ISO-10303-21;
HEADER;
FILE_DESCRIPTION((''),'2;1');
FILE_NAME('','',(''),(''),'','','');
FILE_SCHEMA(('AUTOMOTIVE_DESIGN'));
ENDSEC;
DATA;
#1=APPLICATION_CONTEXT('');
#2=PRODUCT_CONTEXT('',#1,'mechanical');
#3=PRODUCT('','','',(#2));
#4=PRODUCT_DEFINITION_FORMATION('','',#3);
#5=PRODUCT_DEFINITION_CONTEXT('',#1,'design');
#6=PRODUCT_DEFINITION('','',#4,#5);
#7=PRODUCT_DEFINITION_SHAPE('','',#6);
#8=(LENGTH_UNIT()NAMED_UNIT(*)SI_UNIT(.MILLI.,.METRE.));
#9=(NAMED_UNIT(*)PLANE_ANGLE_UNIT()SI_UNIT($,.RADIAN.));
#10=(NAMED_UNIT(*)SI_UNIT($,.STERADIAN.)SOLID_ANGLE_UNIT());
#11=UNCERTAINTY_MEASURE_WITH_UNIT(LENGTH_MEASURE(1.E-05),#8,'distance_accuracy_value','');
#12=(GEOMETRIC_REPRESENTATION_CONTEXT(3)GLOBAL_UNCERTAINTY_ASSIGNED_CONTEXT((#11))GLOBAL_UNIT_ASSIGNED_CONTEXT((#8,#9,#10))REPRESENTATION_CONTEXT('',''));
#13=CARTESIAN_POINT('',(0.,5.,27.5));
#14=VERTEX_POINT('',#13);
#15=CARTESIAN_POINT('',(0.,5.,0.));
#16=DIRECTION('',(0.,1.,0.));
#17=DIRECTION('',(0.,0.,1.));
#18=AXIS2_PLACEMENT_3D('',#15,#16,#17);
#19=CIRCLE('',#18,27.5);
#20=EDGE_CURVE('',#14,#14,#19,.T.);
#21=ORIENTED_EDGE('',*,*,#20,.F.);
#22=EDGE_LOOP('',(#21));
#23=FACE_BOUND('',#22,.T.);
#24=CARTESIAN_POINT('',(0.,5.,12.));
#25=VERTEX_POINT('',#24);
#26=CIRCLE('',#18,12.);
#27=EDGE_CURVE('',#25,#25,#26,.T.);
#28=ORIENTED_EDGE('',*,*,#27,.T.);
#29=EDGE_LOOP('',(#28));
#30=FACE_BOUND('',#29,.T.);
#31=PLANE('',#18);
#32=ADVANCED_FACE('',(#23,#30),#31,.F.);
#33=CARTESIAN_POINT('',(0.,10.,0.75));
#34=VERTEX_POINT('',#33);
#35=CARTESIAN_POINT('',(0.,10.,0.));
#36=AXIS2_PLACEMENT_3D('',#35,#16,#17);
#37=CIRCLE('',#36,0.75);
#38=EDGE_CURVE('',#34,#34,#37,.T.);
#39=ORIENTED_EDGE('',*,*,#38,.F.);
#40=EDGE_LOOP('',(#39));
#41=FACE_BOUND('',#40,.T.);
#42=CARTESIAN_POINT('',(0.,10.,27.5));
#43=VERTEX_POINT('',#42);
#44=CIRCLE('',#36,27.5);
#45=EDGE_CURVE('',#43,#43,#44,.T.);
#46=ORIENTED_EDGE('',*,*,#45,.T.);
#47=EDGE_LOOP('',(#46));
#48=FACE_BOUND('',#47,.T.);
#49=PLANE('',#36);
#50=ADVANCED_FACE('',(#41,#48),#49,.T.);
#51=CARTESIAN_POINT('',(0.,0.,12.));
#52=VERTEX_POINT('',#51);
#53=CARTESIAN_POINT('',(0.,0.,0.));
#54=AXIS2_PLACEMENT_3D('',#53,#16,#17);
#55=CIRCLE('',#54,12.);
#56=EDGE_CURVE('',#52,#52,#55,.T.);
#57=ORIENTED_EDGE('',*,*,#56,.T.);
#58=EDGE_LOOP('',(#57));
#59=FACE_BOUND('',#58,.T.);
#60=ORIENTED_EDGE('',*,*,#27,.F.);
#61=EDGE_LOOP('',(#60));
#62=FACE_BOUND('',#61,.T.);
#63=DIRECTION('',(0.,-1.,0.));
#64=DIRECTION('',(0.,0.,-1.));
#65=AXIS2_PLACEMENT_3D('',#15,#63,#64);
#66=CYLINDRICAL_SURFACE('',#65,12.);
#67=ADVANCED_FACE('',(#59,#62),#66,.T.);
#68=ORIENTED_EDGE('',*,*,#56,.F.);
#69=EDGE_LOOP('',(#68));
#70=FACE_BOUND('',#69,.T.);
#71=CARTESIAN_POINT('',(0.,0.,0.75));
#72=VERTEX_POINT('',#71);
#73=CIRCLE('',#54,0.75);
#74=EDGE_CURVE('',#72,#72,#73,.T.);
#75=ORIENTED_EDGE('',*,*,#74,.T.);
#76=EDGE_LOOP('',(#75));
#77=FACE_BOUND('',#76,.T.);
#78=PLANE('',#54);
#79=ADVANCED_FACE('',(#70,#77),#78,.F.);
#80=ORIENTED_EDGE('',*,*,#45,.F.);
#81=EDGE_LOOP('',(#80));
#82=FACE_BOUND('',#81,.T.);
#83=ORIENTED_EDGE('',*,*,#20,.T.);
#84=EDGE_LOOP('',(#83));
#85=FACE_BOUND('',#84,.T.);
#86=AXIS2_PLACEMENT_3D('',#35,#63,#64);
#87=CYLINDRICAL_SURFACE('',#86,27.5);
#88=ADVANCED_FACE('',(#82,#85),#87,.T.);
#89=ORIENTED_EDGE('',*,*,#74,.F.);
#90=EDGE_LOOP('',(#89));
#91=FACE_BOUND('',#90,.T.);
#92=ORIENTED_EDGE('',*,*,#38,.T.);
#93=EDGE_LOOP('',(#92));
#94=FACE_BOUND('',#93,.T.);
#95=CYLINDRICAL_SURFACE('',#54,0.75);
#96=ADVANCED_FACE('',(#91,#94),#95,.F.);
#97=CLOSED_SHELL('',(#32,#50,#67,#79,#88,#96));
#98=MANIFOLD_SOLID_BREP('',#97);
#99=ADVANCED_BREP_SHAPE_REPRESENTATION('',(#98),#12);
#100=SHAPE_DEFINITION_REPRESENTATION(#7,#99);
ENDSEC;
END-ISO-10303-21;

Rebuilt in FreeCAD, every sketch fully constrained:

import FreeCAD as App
import Part
import Sketcher
from FreeCAD import Vector
Q = App.Units.Quantity

doc = App.newDocument("Part")
body = doc.addObject("PartDesign::Body", "Body")

# Sketch on XZ plane
sketch1 = body.newObject("Sketcher::SketchObject", "Sketch")
sketch1.AttachmentSupport = (doc.getObject("XZ_Plane"), [""])
sketch1.MapMode = "FlatFace"
sketch1.addGeometry(Part.Circle(Vector(0, 0, 0), Vector(0, 0, 1), 12), False)
sketch1.addConstraint(Sketcher.Constraint("Coincident", 0, 3, -1, 1))
sketch1.addConstraint(Sketcher.Constraint("Diameter", 0, Q("24 mm")))
pad1 = body.newObject("PartDesign::Pad", "Pad")
pad1.Profile = sketch1
pad1.Length = 5
pad1.Reversed = True

# Sketch on XZ plane
sketch2 = body.newObject("Sketcher::SketchObject", "Sketch001")
sketch2.AttachmentSupport = (doc.getObject("XZ_Plane"), [""])
sketch2.MapMode = "FlatFace"
sketch2.AttachmentOffset = App.Placement(Vector(0, 0, -5), App.Rotation())
sketch2.addGeometry(Part.Circle(Vector(0, 0, 0), Vector(0, 0, 1), 0.8), False)
sketch2.addConstraint(Sketcher.Constraint("Coincident", 0, 3, -1, 1))
sketch2.addConstraint(Sketcher.Constraint("Diameter", 0, Q("1.5 mm")))
pocket1 = body.newObject("PartDesign::Pocket", "Pocket")
pocket1.Profile = sketch2
pocket1.Length = 5
pocket1.Reversed = True

# Sketch on XZ plane
sketch3 = body.newObject("Sketcher::SketchObject", "Sketch002")
sketch3.AttachmentSupport = (doc.getObject("XZ_Plane"), [""])
sketch3.MapMode = "FlatFace"
sketch3.AttachmentOffset = App.Placement(Vector(0, 0, -5), App.Rotation())
sketch3.addGeometry(Part.Circle(Vector(0, 0, 0), Vector(0, 0, 1), 28), False)
sketch3.addConstraint(Sketcher.Constraint("Coincident", 0, 3, -1, 1))
sketch3.addConstraint(Sketcher.Constraint("Diameter", 0, Q("55 mm")))
pad2 = body.newObject("PartDesign::Pad", "Pad001")
pad2.Profile = sketch3
pad2.Length = 5
pad2.Reversed = True

# Sketch on XZ plane
sketch4 = body.newObject("Sketcher::SketchObject", "Sketch003")
sketch4.AttachmentSupport = (doc.getObject("XZ_Plane"), [""])
sketch4.MapMode = "FlatFace"
sketch4.AttachmentOffset = App.Placement(Vector(0, 0, -10), App.Rotation())
sketch4.addGeometry(Part.Circle(Vector(0, 0, 0), Vector(0, 0, 1), 0.8), False)
sketch4.addConstraint(Sketcher.Constraint("Coincident", 0, 3, -1, 1))
sketch4.addConstraint(Sketcher.Constraint("Diameter", 0, Q("1.5 mm")))
pocket2 = body.newObject("PartDesign::Pocket", "Pocket001")
pocket2.Profile = sketch4
pocket2.Length = 15
pocket2.Reversed = True

doc.recompute()
